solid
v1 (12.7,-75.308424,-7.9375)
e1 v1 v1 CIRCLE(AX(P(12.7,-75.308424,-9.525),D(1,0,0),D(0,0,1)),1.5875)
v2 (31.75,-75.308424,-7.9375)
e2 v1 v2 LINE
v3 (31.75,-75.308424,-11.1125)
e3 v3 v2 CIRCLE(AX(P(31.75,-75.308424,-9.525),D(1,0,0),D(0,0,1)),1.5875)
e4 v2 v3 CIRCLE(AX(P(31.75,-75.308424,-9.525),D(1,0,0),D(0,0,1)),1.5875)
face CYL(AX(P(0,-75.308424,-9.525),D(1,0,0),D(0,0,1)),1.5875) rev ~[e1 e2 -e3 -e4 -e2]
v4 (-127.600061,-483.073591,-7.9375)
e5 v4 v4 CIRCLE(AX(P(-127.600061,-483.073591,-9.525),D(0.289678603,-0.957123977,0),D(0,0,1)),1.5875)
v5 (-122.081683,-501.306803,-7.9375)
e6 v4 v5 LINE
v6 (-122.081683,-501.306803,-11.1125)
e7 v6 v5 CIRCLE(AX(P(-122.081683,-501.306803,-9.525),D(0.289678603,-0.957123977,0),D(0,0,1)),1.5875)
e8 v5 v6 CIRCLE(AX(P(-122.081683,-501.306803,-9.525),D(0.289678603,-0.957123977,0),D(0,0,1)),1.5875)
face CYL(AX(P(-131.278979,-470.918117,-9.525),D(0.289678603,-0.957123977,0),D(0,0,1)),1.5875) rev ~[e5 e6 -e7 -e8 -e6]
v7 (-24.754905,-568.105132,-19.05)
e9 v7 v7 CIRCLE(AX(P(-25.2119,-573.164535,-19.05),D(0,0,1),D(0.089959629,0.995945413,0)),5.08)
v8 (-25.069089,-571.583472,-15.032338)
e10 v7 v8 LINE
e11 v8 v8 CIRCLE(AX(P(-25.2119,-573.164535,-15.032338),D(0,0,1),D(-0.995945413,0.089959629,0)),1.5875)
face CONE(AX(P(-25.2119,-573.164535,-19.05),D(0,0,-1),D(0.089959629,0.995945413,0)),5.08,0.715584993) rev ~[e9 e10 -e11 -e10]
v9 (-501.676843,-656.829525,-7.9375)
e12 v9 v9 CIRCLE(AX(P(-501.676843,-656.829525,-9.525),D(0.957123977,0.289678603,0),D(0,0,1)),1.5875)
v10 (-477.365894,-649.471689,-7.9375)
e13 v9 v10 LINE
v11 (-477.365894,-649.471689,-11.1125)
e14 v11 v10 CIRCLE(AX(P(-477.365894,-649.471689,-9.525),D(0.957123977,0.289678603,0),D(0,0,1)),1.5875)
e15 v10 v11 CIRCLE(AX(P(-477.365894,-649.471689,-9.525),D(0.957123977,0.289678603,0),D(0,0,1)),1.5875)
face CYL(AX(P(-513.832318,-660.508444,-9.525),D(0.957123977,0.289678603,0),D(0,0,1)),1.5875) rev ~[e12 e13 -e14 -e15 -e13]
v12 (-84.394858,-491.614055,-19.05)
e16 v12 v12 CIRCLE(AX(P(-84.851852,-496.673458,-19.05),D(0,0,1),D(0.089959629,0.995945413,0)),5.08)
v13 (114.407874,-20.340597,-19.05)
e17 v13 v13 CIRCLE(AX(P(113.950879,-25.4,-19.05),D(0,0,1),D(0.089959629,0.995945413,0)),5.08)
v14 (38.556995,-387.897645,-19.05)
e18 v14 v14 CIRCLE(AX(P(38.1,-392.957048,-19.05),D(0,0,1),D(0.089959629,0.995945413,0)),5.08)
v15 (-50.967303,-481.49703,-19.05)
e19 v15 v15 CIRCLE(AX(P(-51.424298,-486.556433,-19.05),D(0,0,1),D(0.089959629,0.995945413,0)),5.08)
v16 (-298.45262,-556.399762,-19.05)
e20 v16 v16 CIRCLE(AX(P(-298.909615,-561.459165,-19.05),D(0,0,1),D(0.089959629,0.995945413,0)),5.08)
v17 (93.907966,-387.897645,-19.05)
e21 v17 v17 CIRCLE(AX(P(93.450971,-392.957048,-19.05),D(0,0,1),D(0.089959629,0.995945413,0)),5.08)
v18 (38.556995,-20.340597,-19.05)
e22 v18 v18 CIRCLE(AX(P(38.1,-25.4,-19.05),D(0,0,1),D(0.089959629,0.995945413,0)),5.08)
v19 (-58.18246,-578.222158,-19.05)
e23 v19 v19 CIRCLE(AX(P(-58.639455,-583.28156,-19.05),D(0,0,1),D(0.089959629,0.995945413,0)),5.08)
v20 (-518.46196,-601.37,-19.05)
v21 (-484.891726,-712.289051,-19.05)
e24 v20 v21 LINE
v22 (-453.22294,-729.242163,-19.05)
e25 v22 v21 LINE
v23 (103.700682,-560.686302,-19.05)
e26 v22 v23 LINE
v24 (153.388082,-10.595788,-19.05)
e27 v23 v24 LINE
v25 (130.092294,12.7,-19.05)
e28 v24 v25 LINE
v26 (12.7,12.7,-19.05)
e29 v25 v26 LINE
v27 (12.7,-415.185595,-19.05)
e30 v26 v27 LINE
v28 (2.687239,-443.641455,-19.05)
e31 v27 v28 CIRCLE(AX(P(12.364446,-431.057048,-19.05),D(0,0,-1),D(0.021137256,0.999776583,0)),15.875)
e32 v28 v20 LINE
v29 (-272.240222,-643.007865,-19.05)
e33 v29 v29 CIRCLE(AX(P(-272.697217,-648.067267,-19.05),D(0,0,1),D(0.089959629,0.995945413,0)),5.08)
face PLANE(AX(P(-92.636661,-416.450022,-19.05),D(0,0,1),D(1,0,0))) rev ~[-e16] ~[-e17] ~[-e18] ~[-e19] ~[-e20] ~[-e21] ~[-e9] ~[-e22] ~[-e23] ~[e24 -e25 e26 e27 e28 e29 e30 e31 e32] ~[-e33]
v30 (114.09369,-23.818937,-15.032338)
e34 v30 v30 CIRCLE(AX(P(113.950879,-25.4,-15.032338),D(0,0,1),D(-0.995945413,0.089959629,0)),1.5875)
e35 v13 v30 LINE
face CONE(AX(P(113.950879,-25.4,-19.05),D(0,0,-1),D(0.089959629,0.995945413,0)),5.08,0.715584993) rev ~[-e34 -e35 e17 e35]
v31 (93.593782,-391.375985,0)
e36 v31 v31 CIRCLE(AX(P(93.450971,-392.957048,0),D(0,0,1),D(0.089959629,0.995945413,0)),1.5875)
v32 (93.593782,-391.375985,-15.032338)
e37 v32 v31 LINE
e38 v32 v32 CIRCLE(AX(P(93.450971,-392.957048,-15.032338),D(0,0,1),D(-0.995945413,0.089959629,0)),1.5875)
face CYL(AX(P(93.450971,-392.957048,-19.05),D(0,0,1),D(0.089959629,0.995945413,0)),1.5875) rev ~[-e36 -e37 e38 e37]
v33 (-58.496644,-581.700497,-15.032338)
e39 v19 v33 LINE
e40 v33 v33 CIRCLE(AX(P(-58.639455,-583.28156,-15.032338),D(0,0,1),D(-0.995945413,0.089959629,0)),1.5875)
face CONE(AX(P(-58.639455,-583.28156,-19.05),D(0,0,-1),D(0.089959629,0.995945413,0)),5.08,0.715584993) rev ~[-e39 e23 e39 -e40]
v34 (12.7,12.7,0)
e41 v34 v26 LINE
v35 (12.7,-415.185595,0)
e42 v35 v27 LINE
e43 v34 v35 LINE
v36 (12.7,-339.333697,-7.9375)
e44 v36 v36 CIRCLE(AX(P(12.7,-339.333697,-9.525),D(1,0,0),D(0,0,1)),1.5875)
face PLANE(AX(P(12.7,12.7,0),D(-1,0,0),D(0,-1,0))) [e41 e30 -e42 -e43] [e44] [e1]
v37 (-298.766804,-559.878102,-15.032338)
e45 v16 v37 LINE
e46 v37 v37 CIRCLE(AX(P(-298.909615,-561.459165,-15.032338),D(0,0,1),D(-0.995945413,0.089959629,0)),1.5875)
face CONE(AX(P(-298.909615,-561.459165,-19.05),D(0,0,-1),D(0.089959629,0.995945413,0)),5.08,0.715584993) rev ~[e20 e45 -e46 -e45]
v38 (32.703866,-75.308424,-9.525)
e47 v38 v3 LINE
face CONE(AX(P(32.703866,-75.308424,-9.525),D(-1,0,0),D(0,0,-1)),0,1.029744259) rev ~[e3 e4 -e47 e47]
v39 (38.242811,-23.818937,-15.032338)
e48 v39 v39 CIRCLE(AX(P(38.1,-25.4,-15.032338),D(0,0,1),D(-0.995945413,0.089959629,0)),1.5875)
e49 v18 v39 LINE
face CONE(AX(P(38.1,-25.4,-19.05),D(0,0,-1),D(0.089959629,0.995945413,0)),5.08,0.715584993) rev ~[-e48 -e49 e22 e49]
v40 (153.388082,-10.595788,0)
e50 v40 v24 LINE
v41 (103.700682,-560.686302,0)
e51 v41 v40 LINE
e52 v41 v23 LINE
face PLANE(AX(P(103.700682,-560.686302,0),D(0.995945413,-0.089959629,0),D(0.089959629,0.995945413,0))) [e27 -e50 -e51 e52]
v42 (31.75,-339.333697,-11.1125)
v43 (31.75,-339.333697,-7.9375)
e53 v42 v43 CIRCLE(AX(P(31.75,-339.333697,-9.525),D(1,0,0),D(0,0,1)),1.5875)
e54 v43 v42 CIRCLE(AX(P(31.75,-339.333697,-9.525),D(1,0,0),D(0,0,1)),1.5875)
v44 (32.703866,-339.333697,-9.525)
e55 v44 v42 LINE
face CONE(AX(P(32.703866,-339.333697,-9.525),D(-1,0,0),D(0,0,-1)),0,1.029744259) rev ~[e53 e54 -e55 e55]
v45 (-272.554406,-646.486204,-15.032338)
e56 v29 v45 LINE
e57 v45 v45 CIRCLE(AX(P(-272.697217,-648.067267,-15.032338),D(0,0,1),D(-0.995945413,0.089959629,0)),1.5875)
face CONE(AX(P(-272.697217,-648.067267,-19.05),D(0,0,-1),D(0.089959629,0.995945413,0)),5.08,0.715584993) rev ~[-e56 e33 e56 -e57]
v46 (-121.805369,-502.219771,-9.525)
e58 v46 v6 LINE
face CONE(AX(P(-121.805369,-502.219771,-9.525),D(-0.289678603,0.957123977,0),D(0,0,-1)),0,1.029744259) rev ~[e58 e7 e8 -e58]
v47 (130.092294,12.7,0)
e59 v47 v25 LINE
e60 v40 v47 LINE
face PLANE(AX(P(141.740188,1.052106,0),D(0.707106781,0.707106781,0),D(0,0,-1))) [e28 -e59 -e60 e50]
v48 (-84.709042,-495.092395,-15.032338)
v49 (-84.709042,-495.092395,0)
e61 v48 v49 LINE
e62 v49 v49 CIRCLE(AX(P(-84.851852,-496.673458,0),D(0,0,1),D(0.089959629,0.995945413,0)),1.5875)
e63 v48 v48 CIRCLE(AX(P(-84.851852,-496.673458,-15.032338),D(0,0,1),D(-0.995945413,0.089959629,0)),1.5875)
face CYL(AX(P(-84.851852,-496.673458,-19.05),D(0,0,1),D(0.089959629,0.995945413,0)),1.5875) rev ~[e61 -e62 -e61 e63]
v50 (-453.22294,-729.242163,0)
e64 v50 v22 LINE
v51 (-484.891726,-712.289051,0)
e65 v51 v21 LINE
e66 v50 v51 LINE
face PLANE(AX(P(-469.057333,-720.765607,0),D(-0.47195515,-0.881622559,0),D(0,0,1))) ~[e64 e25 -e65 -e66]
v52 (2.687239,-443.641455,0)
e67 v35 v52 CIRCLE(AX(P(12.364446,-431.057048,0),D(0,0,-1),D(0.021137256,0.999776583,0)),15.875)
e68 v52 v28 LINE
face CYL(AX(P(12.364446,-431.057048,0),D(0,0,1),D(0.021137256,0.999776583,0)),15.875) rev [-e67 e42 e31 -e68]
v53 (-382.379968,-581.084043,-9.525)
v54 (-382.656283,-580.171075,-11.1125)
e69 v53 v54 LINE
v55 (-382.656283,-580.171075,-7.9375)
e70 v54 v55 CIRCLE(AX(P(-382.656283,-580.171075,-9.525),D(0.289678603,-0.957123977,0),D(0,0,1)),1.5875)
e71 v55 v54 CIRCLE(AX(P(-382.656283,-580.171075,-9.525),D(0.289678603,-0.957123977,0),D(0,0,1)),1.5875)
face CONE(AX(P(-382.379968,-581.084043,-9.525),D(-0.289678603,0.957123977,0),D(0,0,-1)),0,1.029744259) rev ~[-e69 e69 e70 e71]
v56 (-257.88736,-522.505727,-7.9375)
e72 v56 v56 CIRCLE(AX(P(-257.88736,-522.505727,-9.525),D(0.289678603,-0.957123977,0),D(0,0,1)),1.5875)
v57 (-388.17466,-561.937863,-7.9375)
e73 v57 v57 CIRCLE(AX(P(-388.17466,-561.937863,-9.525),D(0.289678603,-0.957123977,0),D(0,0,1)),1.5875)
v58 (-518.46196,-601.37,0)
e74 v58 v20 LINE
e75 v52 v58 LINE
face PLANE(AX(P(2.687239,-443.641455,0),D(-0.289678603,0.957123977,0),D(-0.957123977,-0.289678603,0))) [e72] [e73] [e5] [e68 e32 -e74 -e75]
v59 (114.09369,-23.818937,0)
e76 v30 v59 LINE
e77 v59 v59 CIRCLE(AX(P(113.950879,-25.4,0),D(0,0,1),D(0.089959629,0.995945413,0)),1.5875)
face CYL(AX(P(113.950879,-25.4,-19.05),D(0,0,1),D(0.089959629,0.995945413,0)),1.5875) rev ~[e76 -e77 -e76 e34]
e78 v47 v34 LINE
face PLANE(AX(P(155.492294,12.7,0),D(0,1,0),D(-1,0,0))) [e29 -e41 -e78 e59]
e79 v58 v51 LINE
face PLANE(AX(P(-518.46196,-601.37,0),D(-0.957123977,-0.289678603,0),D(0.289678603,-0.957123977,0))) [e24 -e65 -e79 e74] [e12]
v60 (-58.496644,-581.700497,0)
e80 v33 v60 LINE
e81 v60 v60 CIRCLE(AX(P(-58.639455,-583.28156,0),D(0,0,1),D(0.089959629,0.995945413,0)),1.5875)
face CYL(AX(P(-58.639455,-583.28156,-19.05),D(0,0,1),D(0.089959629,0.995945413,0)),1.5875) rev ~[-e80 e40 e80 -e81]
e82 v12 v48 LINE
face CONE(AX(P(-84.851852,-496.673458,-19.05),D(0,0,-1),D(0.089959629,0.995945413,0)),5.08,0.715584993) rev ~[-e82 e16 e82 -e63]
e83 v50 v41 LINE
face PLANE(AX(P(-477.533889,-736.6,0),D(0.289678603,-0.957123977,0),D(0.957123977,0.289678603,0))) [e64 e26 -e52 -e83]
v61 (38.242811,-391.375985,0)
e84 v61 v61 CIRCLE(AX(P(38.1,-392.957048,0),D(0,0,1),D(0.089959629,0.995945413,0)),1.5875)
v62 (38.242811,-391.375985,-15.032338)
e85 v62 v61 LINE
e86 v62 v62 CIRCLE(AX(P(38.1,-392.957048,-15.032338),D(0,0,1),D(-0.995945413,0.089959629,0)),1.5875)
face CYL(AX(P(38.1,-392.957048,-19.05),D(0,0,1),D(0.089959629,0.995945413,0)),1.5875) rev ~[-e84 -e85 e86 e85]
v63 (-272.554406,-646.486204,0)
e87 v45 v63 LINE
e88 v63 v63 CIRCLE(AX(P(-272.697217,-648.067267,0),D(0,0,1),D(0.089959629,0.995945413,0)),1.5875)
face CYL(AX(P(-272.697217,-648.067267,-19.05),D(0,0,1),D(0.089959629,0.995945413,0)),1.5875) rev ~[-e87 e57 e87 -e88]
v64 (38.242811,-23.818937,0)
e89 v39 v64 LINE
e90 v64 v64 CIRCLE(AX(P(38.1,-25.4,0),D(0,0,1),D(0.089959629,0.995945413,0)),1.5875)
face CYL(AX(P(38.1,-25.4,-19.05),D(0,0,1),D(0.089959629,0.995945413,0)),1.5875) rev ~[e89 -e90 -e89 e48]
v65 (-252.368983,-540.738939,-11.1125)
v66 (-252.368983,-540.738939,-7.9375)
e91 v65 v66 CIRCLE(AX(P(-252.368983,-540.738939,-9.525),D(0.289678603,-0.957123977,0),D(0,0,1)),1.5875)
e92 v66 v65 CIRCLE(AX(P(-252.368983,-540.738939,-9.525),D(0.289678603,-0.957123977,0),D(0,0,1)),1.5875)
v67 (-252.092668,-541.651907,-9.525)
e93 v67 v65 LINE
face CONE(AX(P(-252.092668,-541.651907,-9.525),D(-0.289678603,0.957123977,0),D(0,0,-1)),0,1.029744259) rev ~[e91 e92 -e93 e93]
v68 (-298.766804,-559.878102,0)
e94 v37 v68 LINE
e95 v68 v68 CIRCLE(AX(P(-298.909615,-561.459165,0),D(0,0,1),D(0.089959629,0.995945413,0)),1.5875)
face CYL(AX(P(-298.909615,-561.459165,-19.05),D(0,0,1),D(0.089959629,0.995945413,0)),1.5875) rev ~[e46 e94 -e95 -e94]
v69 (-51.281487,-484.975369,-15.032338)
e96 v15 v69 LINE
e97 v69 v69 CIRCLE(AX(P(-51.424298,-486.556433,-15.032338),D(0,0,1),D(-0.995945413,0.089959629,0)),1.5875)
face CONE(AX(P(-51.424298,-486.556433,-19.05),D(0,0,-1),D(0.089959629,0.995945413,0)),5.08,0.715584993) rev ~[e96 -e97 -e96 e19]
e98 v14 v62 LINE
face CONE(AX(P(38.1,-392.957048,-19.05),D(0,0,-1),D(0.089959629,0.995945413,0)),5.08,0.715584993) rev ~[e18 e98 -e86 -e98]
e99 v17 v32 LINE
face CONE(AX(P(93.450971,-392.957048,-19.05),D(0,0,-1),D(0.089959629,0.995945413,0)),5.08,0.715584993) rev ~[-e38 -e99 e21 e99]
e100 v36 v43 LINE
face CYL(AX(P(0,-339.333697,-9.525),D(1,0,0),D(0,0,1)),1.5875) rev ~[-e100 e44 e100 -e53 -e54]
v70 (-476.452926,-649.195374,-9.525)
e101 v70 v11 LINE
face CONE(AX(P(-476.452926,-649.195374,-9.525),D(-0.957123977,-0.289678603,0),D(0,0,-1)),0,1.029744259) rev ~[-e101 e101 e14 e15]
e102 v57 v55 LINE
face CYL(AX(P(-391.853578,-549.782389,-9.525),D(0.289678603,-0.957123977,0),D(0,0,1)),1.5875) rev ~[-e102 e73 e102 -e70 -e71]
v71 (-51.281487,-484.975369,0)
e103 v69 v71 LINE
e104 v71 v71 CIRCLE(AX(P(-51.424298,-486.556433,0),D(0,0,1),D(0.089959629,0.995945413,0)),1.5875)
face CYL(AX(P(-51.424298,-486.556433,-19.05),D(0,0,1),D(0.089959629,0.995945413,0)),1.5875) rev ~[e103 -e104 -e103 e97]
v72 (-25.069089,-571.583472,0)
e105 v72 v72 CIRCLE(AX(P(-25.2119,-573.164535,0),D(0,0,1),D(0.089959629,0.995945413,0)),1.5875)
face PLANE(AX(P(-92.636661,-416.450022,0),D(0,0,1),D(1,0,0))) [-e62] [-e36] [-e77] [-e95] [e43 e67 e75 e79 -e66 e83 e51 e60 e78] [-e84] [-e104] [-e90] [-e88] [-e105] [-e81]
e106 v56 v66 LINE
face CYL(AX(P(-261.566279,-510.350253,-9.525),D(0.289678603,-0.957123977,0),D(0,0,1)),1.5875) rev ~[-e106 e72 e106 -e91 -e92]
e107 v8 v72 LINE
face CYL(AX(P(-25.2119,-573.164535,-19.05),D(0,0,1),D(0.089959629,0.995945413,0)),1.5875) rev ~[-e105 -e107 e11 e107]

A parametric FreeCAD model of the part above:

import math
import FreeCAD as App
import Part
import Sketcher
Q = App.Units.Quantity


def edges_at(feature, points):
    """Names of the edges that pass closest to the given points."""
    edges = feature.Shape.Edges
    near = lambda p: min(range(len(edges)), key=lambda i: edges[i].distToShape(Part.Vertex(*p))[0])
    return sorted({f"Edge{near(p) + 1}" for p in points})

doc = App.newDocument("Part")
params = doc.addObject("Spreadsheet::Sheet", "Params")
for row, (alias, value) in enumerate([
    ("sketch1_radius", "0.625 in"),
    ("pad1_length", "0.75 in"),
    ("chamfer_size", "23.390627 mm"),
    ("chamfer_size2", "1 in"),
    ("chamfer2_size", "1 in"),
    ("sketch2_diameter", "0.125 in"),
    ("hole_diameter", "0.125 in"),
    ("hole_depth", "1.25 in"),
    ("hole_csink_diameter", "0.4 in"),
    ("sketch3_diameter", "0.125 in"),
    ("hole2_diameter", "0.125 in"),
    ("hole2_depth", "1.25 in"),
    ("hole2_csink_diameter", "0.4 in"),
    ("sketch4_diameter", "0.125 in"),
    ("hole3_diameter", "0.125 in"),
    ("hole3_depth", "1.5 in"),
    ("hole3_csink_diameter", "0.4 in"),
    ("sketch5_diameter", "0.125 in"),
    ("hole4_diameter", "0.125 in"),
    ("hole4_depth", "1.5 in"),
    ("hole4_csink_diameter", "0.4 in"),
], start=1):
    params.set(f"A{row}", alias)
    params.set(f"B{row}", "=" + value)
    params.setAlias(f"B{row}", alias)

body = doc.addObject("PartDesign::Body", "Body")

# Sketch on XY plane
sketch1 = body.newObject("Sketcher::SketchObject", "Sketch")
sketch1.AttachmentSupport = (doc.getObject("XY_Plane"), [""])
sketch1.MapMode = "FlatFace"
sketch1.addGeometry(Part.LineSegment(App.Vector(13, 13, 0), App.Vector(13, -415, 0)), False)
sketch1.addGeometry(Part.ArcOfCircle(Part.Circle(App.Vector(12, -431, 0), App.Vector(0, 0, 1), 16), math.radians(-128), math.radians(89)), False)
sketch1.addGeometry(Part.LineSegment(App.Vector(3, -444, 0), App.Vector(-518, -601, 0)), False)
sketch1.addGeometry(Part.LineSegment(App.Vector(-518, -601, 0), App.Vector(-478, -737, 0)), False)
sketch1.addGeometry(Part.LineSegment(App.Vector(-478, -737, 0), App.Vector(104, -561, 0)), False)
sketch1.addGeometry(Part.LineSegment(App.Vector(104, -561, 0), App.Vector(155, 13, 0)), False)
sketch1.addGeometry(Part.LineSegment(App.Vector(155, 13, 0), App.Vector(13, 13, 0)), False)
sketch1.addConstraint(Sketcher.Constraint("Coincident", 0, 2, 1, 2))
sketch1.addConstraint(Sketcher.Constraint("Coincident", 1, 1, 2, 1))
sketch1.addConstraint(Sketcher.Constraint("Coincident", 2, 2, 3, 1))
sketch1.addConstraint(Sketcher.Constraint("Coincident", 3, 2, 4, 1))
sketch1.addConstraint(Sketcher.Constraint("Coincident", 4, 2, 5, 1))
sketch1.addConstraint(Sketcher.Constraint("Coincident", 5, 2, 6, 1))
sketch1.addConstraint(Sketcher.Constraint("Coincident", 6, 2, 0, 1))
sketch1.addConstraint(Sketcher.Constraint("Vertical", 0))
sketch1.addConstraint(Sketcher.Constraint("Horizontal", 6))
sketch1.addConstraint(Sketcher.Constraint("Perpendicular", 2, 3))
sketch1.addConstraint(Sketcher.Constraint("Perpendicular", 3, 4))
sketch1.addConstraint(Sketcher.Constraint("DistanceY", 3, 2, -1, 1, Q("29 in")))
sketch1.addConstraint(Sketcher.Constraint("Radius", 1, Q("0.625 in")))
sketch1.addConstraint(Sketcher.Constraint("DistanceX", -1, 1, 0, 2, Q("0.5 in")))
sketch1.addConstraint(Sketcher.Constraint("DistanceY", -1, 1, 5, 2, Q("0.5 in")))
sketch1.addConstraint(Sketcher.Constraint("DistanceY", 2, 2, -1, 1, 601.37))
sketch1.addConstraint(Sketcher.Constraint("DistanceY", 4, 2, -1, 1, 560.686302))
sketch1.addConstraint(Sketcher.Constraint("DistanceX", 2, 2, 1, 1, 521.149199))
sketch1.addConstraint(Sketcher.Constraint("Distance", 2, 544.494978))
sketch1.addConstraint(Sketcher.Constraint("Distance", 5, 575.720611))
sketch1.addConstraint(Sketcher.Constraint("DistanceX", 6, 2, 6, 1, 142.792294))
sketch1.addConstraint(Sketcher.Constraint("DistanceY", 0, 2, 0, 1, 427.885595))
sketch1.setExpression("Constraints[12]", "Params.sketch1_radius")
pad1 = body.newObject("PartDesign::Pad", "Pad")
pad1.Profile = sketch1
pad1.setExpression("Length", "Params.pad1_length")
pad1.Reversed = True
doc.recompute()

chamfer = body.newObject("PartDesign::Chamfer", "Chamfer")
chamfer.Base = (pad1, edges_at(pad1, [(155.492, 12.7, -9.525)]))
chamfer.ChamferType = "Two distances"
chamfer.setExpression("Size", "Params.chamfer_size")
chamfer.setExpression("Size2", "Params.chamfer_size2")
doc.recompute()

chamfer2 = body.newObject("PartDesign::Chamfer", "Chamfer001")
chamfer2.Base = (chamfer, edges_at(chamfer, [(-477.534, -736.6, -9.525)]))
chamfer2.setExpression("Size", "Params.chamfer2_size")

# Sketch on YZ plane
sketch2 = body.newObject("Sketcher::SketchObject", "Sketch001")
sketch2.AttachmentSupport = (doc.getObject("YZ_Plane"), [""])
sketch2.MapMode = "FlatFace"
sketch2.addGeometry(Part.Circle(App.Vector(-97.3, 321.4, 0), App.Vector(0, 0, 1), 1.6), False)
sketch2.addGeometry(Part.Circle(App.Vector(-97.3, 9.5, 0), App.Vector(0, 0, 1), 1.6), False)
sketch2.addGeometry(Part.Circle(App.Vector(-317.3, 9.5, 0), App.Vector(0, 0, 1), 1.6), False)
sketch2.addGeometry(Part.Circle(App.Vector(-75.3, -9.5, 0), App.Vector(0, 0, 1), 1.6), False)
sketch2.addGeometry(Part.Circle(App.Vector(-339.3, -9.5, 0), App.Vector(0, 0, 1), 1.6), False)
sketch2.addGeometry(Part.Circle(App.Vector(-339.3, 340.5, 0), App.Vector(0, 0, 1), 1.6), False)
sketch2.addGeometry(Part.Circle(App.Vector(-75.3, 340.5, 0), App.Vector(0, 0, 1), 1.6), False)
sketch2.addGeometry(Part.Circle(App.Vector(-317.3, 321.4, 0), App.Vector(0, 0, 1), 1.6), False)
sketch2.addConstraint(Sketcher.Constraint("Equal", 0, 1))
sketch2.addConstraint(Sketcher.Constraint("Equal", 1, 2))
sketch2.addConstraint(Sketcher.Constraint("Equal", 2, 3))
sketch2.addConstraint(Sketcher.Constraint("Equal", 3, 4))
sketch2.addConstraint(Sketcher.Constraint("Equal", 4, 5))
sketch2.addConstraint(Sketcher.Constraint("Equal", 5, 6))
sketch2.addConstraint(Sketcher.Constraint("Equal", 6, 7))
sketch2.addConstraint(Sketcher.Constraint("Horizontal", 1, 3, 2, 3))
sketch2.addConstraint(Sketcher.Constraint("Horizontal", 3, 3, 4, 3))
sketch2.addConstraint(Sketcher.Constraint("Horizontal", 5, 3, 6, 3))
sketch2.addConstraint(Sketcher.Constraint("Horizontal", 0, 3, 7, 3))
sketch2.addConstraint(Sketcher.Constraint("Vertical", 0, 3, 1, 3))
sketch2.addConstraint(Sketcher.Constraint("Vertical", 4, 3, 5, 3))
sketch2.addConstraint(Sketcher.Constraint("Vertical", 3, 3, 6, 3))
sketch2.addConstraint(Sketcher.Constraint("Vertical", 2, 3, 7, 3))
sketch2.addConstraint(Sketcher.Constraint("Diameter", 0, Q("0.125 in")))
sketch2.addConstraint(Sketcher.Constraint("DistanceY", 3, 3, 1, 3, Q("0.75 in")))
sketch2.addConstraint(Sketcher.Constraint("DistanceY", 0, 3, 5, 3, Q("0.75 in")))
sketch2.addConstraint(Sketcher.Constraint("DistanceY", -1, 1, 1, 3, Q("0.375 in")))
sketch2.addConstraint(Sketcher.Constraint("DistanceY", -1, 1, 0, 3, 321.425))
sketch2.addConstraint(Sketcher.Constraint("DistanceX", 0, 3, -1, 1, 97.31053))
sketch2.addConstraint(Sketcher.Constraint("DistanceX", 2, 3, -1, 1, 317.331591))
sketch2.addConstraint(Sketcher.Constraint("DistanceX", 3, 3, -1, 1, 75.308424))
sketch2.addConstraint(Sketcher.Constraint("DistanceX", 4, 3, -1, 1, 339.333697))
sketch2.setExpression("Constraints[15]", "Params.sketch2_diameter")
doc.recompute()
hole = body.newObject("PartDesign::Hole", "Hole")
hole.Profile = sketch2
hole.ThreadType = "None"
hole.setExpression("Diameter", "Params.hole_diameter")
hole.DepthType = "Dimension"
hole.setExpression("Depth", "Params.hole_depth")
hole.DrillPoint = "Angled"
hole.DrillPointAngle = 118
hole.HoleCutType = "Countersink"
hole.setExpression("HoleCutDiameter", "Params.hole_csink_diameter")
hole.HoleCutCountersinkAngle = 82
hole.Reversed = True

# Sketch on an angled plane
sketch3 = body.newObject("Sketcher::SketchObject", "Sketch002")
sketch3.Placement = App.Placement(App.Vector(119.54987, -395.003447, 0), App.Rotation(App.Vector(0, 0, -1), App.Vector(-0.957123977, -0.289678603, 0), App.Vector(-0.289678603, 0.957123977, 0), "ZXY"))
sketch3.addGeometry(Part.Circle(App.Vector(9.5, 534.3, 0), App.Vector(0, 0, 1), 1.6), False)
sketch3.addGeometry(Part.Circle(App.Vector(9.5, 398.2, 0), App.Vector(0, 0, 1), 1.6), False)
sketch3.addGeometry(Part.Circle(App.Vector(9.5, 262.1, 0), App.Vector(0, 0, 1), 1.6), False)
sketch3.addGeometry(Part.Circle(App.Vector(-83.9, 628, 0), App.Vector(0, 0, 1), 1.6), False)
sketch3.addGeometry(Part.Circle(App.Vector(-83.9, 500.7, 0), App.Vector(0, 0, 1), 1.6), False)
sketch3.addGeometry(Part.Circle(App.Vector(-103, 511.3, 0), App.Vector(0, 0, 1), 1.6), False)
sketch3.addGeometry(Part.Circle(App.Vector(-103, 617.4, 0), App.Vector(0, 0, 1), 1.6), False)
sketch3.addGeometry(Part.Circle(App.Vector(-228, 617.4, 0), App.Vector(0, 0, 1), 1.6), False)
sketch3.addGeometry(Part.Circle(App.Vector(-228, 511.3, 0), App.Vector(0, 0, 1), 1.6), False)
sketch3.addGeometry(Part.Circle(App.Vector(-247, 500.7, 0), App.Vector(0, 0, 1), 1.6), False)
sketch3.addGeometry(Part.Circle(App.Vector(-247, 628, 0), App.Vector(0, 0, 1), 1.6), False)
sketch3.addGeometry(Part.Circle(App.Vector(-340.5, 262.1, 0), App.Vector(0, 0, 1), 1.6), False)
sketch3.addGeometry(Part.Circle(App.Vector(-340.5, 398.2, 0), App.Vector(0, 0, 1), 1.6), False)
sketch3.addGeometry(Part.Circle(App.Vector(-340.5, 534.3, 0), App.Vector(0, 0, 1), 1.6), False)
sketch3.addGeometry(Part.Circle(App.Vector(-248.2, 448.7, 0), App.Vector(0, 0, 1), 1.6), False)
sketch3.addGeometry(Part.Circle(App.Vector(-165.5, 448.7, 0), App.Vector(0, 0, 1), 1.6), False)
sketch3.addGeometry(Part.Circle(App.Vector(-82.7, 448.7, 0), App.Vector(0, 0, 1), 1.6), False)
sketch3.addGeometry(Part.Circle(App.Vector(-165.5, 225.1, 0), App.Vector(0, 0, 1), 1.6), False)
sketch3.addGeometry(Part.Circle(App.Vector(-248.2, 225.1, 0), App.Vector(0, 0, 1), 1.6), False)
sketch3.addGeometry(Part.Circle(App.Vector(-82.7, 225.1, 0), App.Vector(0, 0, 1), 1.6), False)
sketch3.addConstraint(Sketcher.Constraint("Equal", 0, 1))
sketch3.addConstraint(Sketcher.Constraint("Equal", 1, 2))
sketch3.addConstraint(Sketcher.Constraint("Equal", 2, 3))
sketch3.addConstraint(Sketcher.Constraint("Equal", 3, 4))
sketch3.addConstraint(Sketcher.Constraint("Equal", 4, 5))
sketch3.addConstraint(Sketcher.Constraint("Equal", 5, 6))
sketch3.addConstraint(Sketcher.Constraint("Equal", 6, 7))
sketch3.addConstraint(Sketcher.Constraint("Equal", 7, 8))
sketch3.addConstraint(Sketcher.Constraint("Equal", 8, 9))
sketch3.addConstraint(Sketcher.Constraint("Equal", 9, 10))
sketch3.addConstraint(Sketcher.Constraint("Equal", 10, 11))
sketch3.addConstraint(Sketcher.Constraint("Equal", 11, 12))
sketch3.addConstraint(Sketcher.Constraint("Equal", 12, 13))
sketch3.addConstraint(Sketcher.Constraint("Equal", 13, 14))
sketch3.addConstraint(Sketcher.Constraint("Equal", 14, 15))
sketch3.addConstraint(Sketcher.Constraint("Equal", 15, 16))
sketch3.addConstraint(Sketcher.Constraint("Equal", 16, 17))
sketch3.addConstraint(Sketcher.Constraint("Equal", 17, 18))
sketch3.addConstraint(Sketcher.Constraint("Equal", 18, 19))
sketch3.addConstraint(Sketcher.Constraint("Horizontal", 6, 3, 7, 3))
sketch3.addConstraint(Sketcher.Constraint("Horizontal", 5, 3, 8, 3))
sketch3.addConstraint(Sketcher.Constraint("Horizontal", 4, 3, 9, 3))
sketch3.addConstraint(Sketcher.Constraint("Horizontal", 3, 3, 10, 3))
sketch3.addConstraint(Sketcher.Constraint("Horizontal", 2, 3, 11, 3))
sketch3.addConstraint(Sketcher.Constraint("Horizontal", 1, 3, 12, 3))
sketch3.addConstraint(Sketcher.Constraint("Horizontal", 0, 3, 13, 3))
sketch3.addConstraint(Sketcher.Constraint("Horizontal", 14, 3, 15, 3))
sketch3.addConstraint(Sketcher.Constraint("Horizontal", 15, 3, 16, 3))
sketch3.addConstraint(Sketcher.Constraint("Horizontal", 17, 3, 18, 3))
sketch3.addConstraint(Sketcher.Constraint("Horizontal", 18, 3, 19, 3))
sketch3.addConstraint(Sketcher.Constraint("Vertical", 0, 3, 1, 3))
sketch3.addConstraint(Sketcher.Constraint("Vertical", 1, 3, 2, 3))
sketch3.addConstraint(Sketcher.Constraint("Vertical", 3, 3, 4, 3))
sketch3.addConstraint(Sketcher.Constraint("Vertical", 5, 3, 6, 3))
sketch3.addConstraint(Sketcher.Constraint("Vertical", 7, 3, 8, 3))
sketch3.addConstraint(Sketcher.Constraint("Vertical", 9, 3, 10, 3))
sketch3.addConstraint(Sketcher.Constraint("Vertical", 11, 3, 12, 3))
sketch3.addConstraint(Sketcher.Constraint("Vertical", 12, 3, 13, 3))
sketch3.addConstraint(Sketcher.Constraint("Vertical", 15, 3, 17, 3))
sketch3.addConstraint(Sketcher.Constraint("Vertical", 14, 3, 18, 3))
sketch3.addConstraint(Sketcher.Constraint("Vertical", 16, 3, 19, 3))
sketch3.addConstraint(Sketcher.Constraint("Diameter", 0, Q("0.125 in")))
sketch3.addConstraint(Sketcher.Constraint("DistanceX", 5, 3, 4, 3, Q("0.75 in")))
sketch3.addConstraint(Sketcher.Constraint("DistanceX", 9, 3, 8, 3, Q("0.75 in")))
sketch3.addConstraint(Sketcher.Constraint("DistanceX", -1, 1, 0, 3, Q("0.375 in")))
sketch3.addConstraint(Sketcher.Constraint("DistanceX", 3, 3, -1, 1, 83.925))
sketch3.addConstraint(Sketcher.Constraint("DistanceX", 7, 3, -1, 1, 227.975))
sketch3.addConstraint(Sketcher.Constraint("DistanceX", 11, 3, -1, 1, 340.475))
sketch3.addConstraint(Sketcher.Constraint("DistanceX", 14, 3, -1, 1, 248.2125))
sketch3.addConstraint(Sketcher.Constraint("DistanceX", 15, 3, -1, 1, 165.475))
sketch3.addConstraint(Sketcher.Constraint("DistanceX", 16, 3, -1, 1, 82.7375))
sketch3.addConstraint(Sketcher.Constraint("DistanceY", 5, 3, 0, 3, 23.007602))
sketch3.addConstraint(Sketcher.Constraint("DistanceY", -1, 1, 0, 3, 534.31265))
sketch3.addConstraint(Sketcher.Constraint("DistanceY", -1, 1, 2, 3, 262.065161))
sketch3.addConstraint(Sketcher.Constraint("DistanceY", -1, 1, 3, 3, 628.001369))
sketch3.addConstraint(Sketcher.Constraint("DistanceY", -1, 1, 4, 3, 500.696292))
sketch3.addConstraint(Sketcher.Constraint("DistanceY", 4, 3, 6, 3, 116.696321))
sketch3.addConstraint(Sketcher.Constraint("DistanceY", 12, 3, 14, 3, 50.547361))
sketch3.addConstraint(Sketcher.Constraint("DistanceY", 17, 3, 15, 3, 223.64685))
sketch3.addConstraint(Sketcher.Constraint("DistanceY", -1, 1, 1, 3, 398.188905))
sketch3.setExpression("Constraints[41]", "Params.sketch3_diameter")
doc.recompute()
hole2 = body.newObject("PartDesign::Hole", "Hole001")
hole2.Profile = sketch3
hole2.ThreadType = "None"
hole2.setExpression("Diameter", "Params.hole2_diameter")
hole2.DepthType = "Dimension"
hole2.setExpression("Depth", "Params.hole2_depth")
hole2.DrillPoint = "Angled"
hole2.DrillPointAngle = 118
hole2.HoleCutType = "Countersink"
hole2.setExpression("HoleCutDiameter", "Params.hole2_csink_diameter")
hole2.HoleCutCountersinkAngle = 82

# Sketch on XY plane
sketch4 = body.newObject("Sketcher::SketchObject", "Sketch003")
sketch4.AttachmentSupport = (doc.getObject("XY_Plane"), [""])
sketch4.MapMode = "FlatFace"
sketch4.AttachmentOffset = App.Placement(App.Vector(0, 0, -0.75 * 25.4), App.Rotation())
sketch4.addGeometry(Part.Circle(App.Vector(38.1, -25.4, 0), App.Vector(0, 0, 1), 1.6), False)
sketch4.addGeometry(Part.Circle(App.Vector(114, -25.4, 0), App.Vector(0, 0, 1), 1.6), False)
sketch4.addGeometry(Part.Circle(App.Vector(38.1, -393, 0), App.Vector(0, 0, 1), 1.6), False)
sketch4.addGeometry(Part.Circle(App.Vector(93.5, -393, 0), App.Vector(0, 0, 1), 1.6), False)
sketch4.addGeometry(Part.Circle(App.Vector(-51.4, -486.6, 0), App.Vector(0, 0, 1), 1.6), False)
sketch4.addGeometry(Part.Circle(App.Vector(-25.2, -573.2, 0), App.Vector(0, 0, 1), 1.6), False)
sketch4.addGeometry(Part.Circle(App.Vector(-58.6, -583.3, 0), App.Vector(0, 0, 1), 1.6), False)
sketch4.addGeometry(Part.Circle(App.Vector(-272.7, -648.1, 0), App.Vector(0, 0, 1), 1.6), False)
sketch4.addGeometry(Part.Circle(App.Vector(-84.9, -496.7, 0), App.Vector(0, 0, 1), 1.6), False)
sketch4.addGeometry(Part.Circle(App.Vector(-298.9, -561.5, 0), App.Vector(0, 0, 1), 1.6), False)
sketch4.addConstraint(Sketcher.Constraint("Equal", 0, 1))
sketch4.addConstraint(Sketcher.Constraint("Equal", 1, 2))
sketch4.addConstraint(Sketcher.Constraint("Equal", 2, 3))
sketch4.addConstraint(Sketcher.Constraint("Equal", 3, 4))
sketch4.addConstraint(Sketcher.Constraint("Equal", 4, 5))
sketch4.addConstraint(Sketcher.Constraint("Equal", 5, 6))
sketch4.addConstraint(Sketcher.Constraint("Equal", 6, 7))
sketch4.addConstraint(Sketcher.Constraint("Equal", 7, 8))
sketch4.addConstraint(Sketcher.Constraint("Equal", 8, 9))
sketch4.addConstraint(Sketcher.Constraint("Horizontal", 0, 3, 1, 3))
sketch4.addConstraint(Sketcher.Constraint("Horizontal", 2, 3, 3, 3))
sketch4.addConstraint(Sketcher.Constraint("Vertical", 0, 3, 2, 3))
sketch4.addConstraint(Sketcher.Constraint("Diameter", 0, Q("0.125 in")))
sketch4.addConstraint(Sketcher.Constraint("DistanceY", 0, 3, -1, 1, Q("1 in")))
sketch4.addConstraint(Sketcher.Constraint("DistanceX", -1, 1, 0, 3, Q("1.5 in")))
sketch4.addConstraint(Sketcher.Constraint("DistanceX", 5, 3, -1, 1, 25.2119))
sketch4.addConstraint(Sketcher.Constraint("DistanceX", -1, 1, 1, 3, 113.950879))
sketch4.addConstraint(Sketcher.Constraint("DistanceY", 2, 3, -1, 1, 392.957048))
sketch4.addConstraint(Sketcher.Constraint("DistanceX", -1, 1, 3, 3, 93.450971))
sketch4.addConstraint(Sketcher.Constraint("DistanceY", 6, 3, -1, 1, 583.281561))
sketch4.addConstraint(Sketcher.Constraint("DistanceY", 8, 3, -1, 1, 496.673458))
sketch4.addConstraint(Sketcher.Constraint("DistanceX", 4, 3, 3, 3, 144.875269))
sketch4.addConstraint(Sketcher.Constraint("DistanceX", 7, 3, 4, 3, 221.27292))
sketch4.addConstraint(Sketcher.Constraint("DistanceY", 7, 3, 2, 3, 255.110219))
sketch4.addConstraint(Sketcher.Constraint("DistanceX", 9, 3, 6, 3, 240.27016))
sketch4.addConstraint(Sketcher.Constraint("DistanceY", 5, 3, 9, 3, 11.70537))
sketch4.addConstraint(Sketcher.Constraint("DistanceY", 4, 3, -1, 1, 486.556433))
sketch4.addConstraint(Sketcher.Constraint("DistanceY", 5, 3, -1, 1, 573.164535))
sketch4.addConstraint(Sketcher.Constraint("DistanceX", 6, 3, -1, 1, 58.639455))
sketch4.addConstraint(Sketcher.Constraint("DistanceX", 8, 3, -1, 1, 84.851852))
sketch4.setExpression("Constraints[12]", "Params.sketch4_diameter")
doc.recompute()
hole3 = body.newObject("PartDesign::Hole", "Hole002")
hole3.Profile = sketch4
hole3.ThreadType = "None"
hole3.setExpression("Diameter", "Params.hole3_diameter")
hole3.DepthType = "Dimension"
hole3.setExpression("Depth", "Params.hole3_depth")
hole3.DrillPoint = "Angled"
hole3.DrillPointAngle = 118
hole3.HoleCutType = "Countersink"
hole3.setExpression("HoleCutDiameter", "Params.hole3_csink_diameter")
hole3.HoleCutCountersinkAngle = 82
hole3.Reversed = True

# Sketch on an angled plane
sketch5 = body.newObject("Sketcher::SketchObject", "Sketch004")
sketch5.Placement = App.Placement(App.Vector(-653.846222, -197.889996, 0), App.Rotation(App.Vector(0, 0, -1), App.Vector(0.289678603, -0.957123977, 0), App.Vector(-0.957123977, -0.289678603, 0), "ZXY"))
sketch5.addGeometry(Part.Circle(App.Vector(-274.1, 367.9, 0), App.Vector(0, 0, 1), 1.6), False)
sketch5.addGeometry(Part.Circle(App.Vector(-56.8, 367.9, 0), App.Vector(0, 0, 1), 1.6), False)
sketch5.addGeometry(Part.Circle(App.Vector(42.3, 367.9, 0), App.Vector(0, 0, 1), 1.6), False)
sketch5.addGeometry(Part.Circle(App.Vector(9.5, 483.3, 0), App.Vector(0, 0, 1), 1.6), False)
sketch5.addGeometry(Part.Circle(App.Vector(-30.2, 419, 0), App.Vector(0, 0, 1), 1.6), False)
sketch5.addGeometry(Part.Circle(App.Vector(10.8, 419, 0), App.Vector(0, 0, 1), 1.6), False)
sketch5.addGeometry(Part.Circle(App.Vector(-340.5, 483.3, 0), App.Vector(0, 0, 1), 1.6), False)
sketch5.addGeometry(Part.Circle(App.Vector(-300.7, 419, 0), App.Vector(0, 0, 1), 1.6), False)
sketch5.addGeometry(Part.Circle(App.Vector(-341.8, 419, 0), App.Vector(0, 0, 1), 1.6), False)
sketch5.addGeometry(Part.Circle(App.Vector(-373.2, 367.9, 0), App.Vector(0, 0, 1), 1.6), False)
sketch5.addConstraint(Sketcher.Constraint("Equal", 0, 1))
sketch5.addConstraint(Sketcher.Constraint("Equal", 1, 2))
sketch5.addConstraint(Sketcher.Constraint("Equal", 2, 3))
sketch5.addConstraint(Sketcher.Constraint("Equal", 3, 4))
sketch5.addConstraint(Sketcher.Constraint("Equal", 4, 5))
sketch5.addConstraint(Sketcher.Constraint("Equal", 5, 6))
sketch5.addConstraint(Sketcher.Constraint("Equal", 6, 7))
sketch5.addConstraint(Sketcher.Constraint("Equal", 7, 8))
sketch5.addConstraint(Sketcher.Constraint("Equal", 8, 9))
sketch5.addConstraint(Sketcher.Constraint("Horizontal", 0, 3, 1, 3))
sketch5.addConstraint(Sketcher.Constraint("Horizontal", 1, 3, 2, 3))
sketch5.addConstraint(Sketcher.Constraint("Horizontal", 4, 3, 5, 3))
sketch5.addConstraint(Sketcher.Constraint("Horizontal", 3, 3, 6, 3))
sketch5.addConstraint(Sketcher.Constraint("Horizontal", 5, 3, 7, 3))
sketch5.addConstraint(Sketcher.Constraint("Horizontal", 7, 3, 8, 3))
sketch5.addConstraint(Sketcher.Constraint("Horizontal", 2, 3, 9, 3))
sketch5.addConstraint(Sketcher.Constraint("Diameter", 0, Q("0.125 in")))
sketch5.addConstraint(Sketcher.Constraint("DistanceX", -1, 1, 3, 3, Q("0.375 in")))
sketch5.addConstraint(Sketcher.Constraint("DistanceX", 0, 3, -1, 1, 274.125))
sketch5.addConstraint(Sketcher.Constraint("DistanceX", 1, 3, -1, 1, 56.825))
sketch5.addConstraint(Sketcher.Constraint("DistanceX", -1, 1, 2, 3, 42.3))
sketch5.addConstraint(Sketcher.Constraint("DistanceX", 6, 3, -1, 1, 340.475))
sketch5.addConstraint(Sketcher.Constraint("DistanceX", 9, 3, -1, 1, 373.25))
sketch5.addConstraint(Sketcher.Constraint("DistanceY", 2, 3, 3, 3, 115.444398))
sketch5.addConstraint(Sketcher.Constraint("DistanceX", 7, 3, 5, 3, 311.55))
sketch5.addConstraint(Sketcher.Constraint("DistanceX", 8, 3, 4, 3, 311.55))
sketch5.addConstraint(Sketcher.Constraint("DistanceY", -1, 1, 3, 3, 483.34224))
sketch5.addConstraint(Sketcher.Constraint("DistanceY", -1, 1, 4, 3, 419.048309))
sketch5.addConstraint(Sketcher.Constraint("DistanceX", 4, 3, -1, 1, 30.208333))
sketch5.addConstraint(Sketcher.Constraint("DistanceX", -1, 1, 5, 3, 10.808333))
sketch5.setExpression("Constraints[16]", "Params.sketch5_diameter")
doc.recompute()
hole4 = body.newObject("PartDesign::Hole", "Hole003")
hole4.Profile = sketch5
hole4.ThreadType = "None"
hole4.setExpression("Diameter", "Params.hole4_diameter")
hole4.DepthType = "Dimension"
hole4.setExpression("Depth", "Params.hole4_depth")
hole4.DrillPoint = "Angled"
hole4.DrillPointAngle = 118
hole4.HoleCutType = "Countersink"
hole4.setExpression("HoleCutDiameter", "Params.hole4_csink_diameter")
hole4.HoleCutCountersinkAngle = 82

doc.recompute()
